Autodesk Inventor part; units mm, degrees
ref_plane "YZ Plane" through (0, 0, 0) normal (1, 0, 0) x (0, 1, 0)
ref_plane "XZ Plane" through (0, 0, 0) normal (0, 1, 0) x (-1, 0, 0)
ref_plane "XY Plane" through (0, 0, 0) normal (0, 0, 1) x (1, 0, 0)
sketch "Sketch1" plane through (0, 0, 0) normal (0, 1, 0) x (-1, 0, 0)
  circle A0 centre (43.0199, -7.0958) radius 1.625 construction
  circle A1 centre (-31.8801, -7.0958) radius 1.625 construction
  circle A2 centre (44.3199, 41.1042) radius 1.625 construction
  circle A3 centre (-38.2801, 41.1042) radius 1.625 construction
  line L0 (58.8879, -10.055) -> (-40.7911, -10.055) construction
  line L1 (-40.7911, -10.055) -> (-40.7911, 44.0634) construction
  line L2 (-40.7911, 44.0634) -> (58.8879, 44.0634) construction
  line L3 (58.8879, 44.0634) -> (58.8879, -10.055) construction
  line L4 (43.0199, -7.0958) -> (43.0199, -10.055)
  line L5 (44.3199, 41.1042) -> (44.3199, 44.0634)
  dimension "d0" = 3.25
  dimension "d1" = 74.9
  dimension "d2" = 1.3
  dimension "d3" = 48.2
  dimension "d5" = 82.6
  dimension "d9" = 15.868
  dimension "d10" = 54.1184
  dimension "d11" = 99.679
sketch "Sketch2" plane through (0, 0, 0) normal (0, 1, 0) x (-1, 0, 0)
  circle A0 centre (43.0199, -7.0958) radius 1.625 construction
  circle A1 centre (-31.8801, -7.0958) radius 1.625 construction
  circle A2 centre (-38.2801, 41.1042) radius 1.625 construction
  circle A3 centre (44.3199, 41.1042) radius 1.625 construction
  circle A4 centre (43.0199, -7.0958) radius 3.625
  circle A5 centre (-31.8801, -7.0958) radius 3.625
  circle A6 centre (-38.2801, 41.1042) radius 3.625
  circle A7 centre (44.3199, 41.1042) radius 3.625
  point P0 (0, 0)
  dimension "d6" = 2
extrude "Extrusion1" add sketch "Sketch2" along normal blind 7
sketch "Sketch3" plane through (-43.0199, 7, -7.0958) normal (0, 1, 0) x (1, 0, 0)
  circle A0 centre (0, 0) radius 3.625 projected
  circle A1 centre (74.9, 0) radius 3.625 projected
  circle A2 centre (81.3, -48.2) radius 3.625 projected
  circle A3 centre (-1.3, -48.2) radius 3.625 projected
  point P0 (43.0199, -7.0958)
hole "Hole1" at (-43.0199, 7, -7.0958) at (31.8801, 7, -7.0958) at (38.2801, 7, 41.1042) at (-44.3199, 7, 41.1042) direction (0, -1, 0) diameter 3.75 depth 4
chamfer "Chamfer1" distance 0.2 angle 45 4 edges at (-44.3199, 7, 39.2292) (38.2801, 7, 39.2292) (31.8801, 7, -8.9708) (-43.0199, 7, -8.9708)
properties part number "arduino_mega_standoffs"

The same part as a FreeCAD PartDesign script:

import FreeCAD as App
import Part
import Sketcher
Q = App.Units.Quantity


def edges_at(feature, points):
    """Names of the edges that pass closest to the given points."""
    edges = feature.Shape.Edges
    near = lambda p: min(range(len(edges)), key=lambda i: edges[i].distToShape(Part.Vertex(*p))[0])
    return sorted({f"Edge{near(p) + 1}" for p in points})

doc = App.newDocument("Part")
body = doc.addObject("PartDesign::Body", "Body")
body.AllowCompound = True

sketch1 = doc.addObject("Sketcher::SketchObject", "Sketch")
body.addObject(sketch1)
sketch1.AttachmentSupport = (doc.XZ_Plane, [""])
sketch1.MapMode = "FlatFace"
sketch1.addGeometry(Part.Circle(App.Vector(-43.0199, -7.0958, 0), App.Vector(0, 0, 1), 3.625), False)
sketch1.addGeometry(Part.Circle(App.Vector(31.8801, -7.0958, 0), App.Vector(0, 0, 1), 3.625), False)
sketch1.addGeometry(Part.Circle(App.Vector(38.2801, 41.1042, 0), App.Vector(0, 0, 1), 3.625), False)
sketch1.addGeometry(Part.Circle(App.Vector(-44.3199, 41.1042, 0), App.Vector(0, 0, 1), 3.625), False)
sketch1.addConstraint(Sketcher.Constraint("Equal", 0, 1))
sketch1.addConstraint(Sketcher.Constraint("Equal", 1, 2))
sketch1.addConstraint(Sketcher.Constraint("Equal", 2, 3))
sketch1.addConstraint(Sketcher.Constraint("Horizontal", 0, 3, 1, 3))
sketch1.addConstraint(Sketcher.Constraint("Horizontal", 2, 3, 3, 3))
sketch1.addConstraint(Sketcher.Constraint("Diameter", 0, Q("7.25 mm")))
sketch1.addConstraint(Sketcher.Constraint("DistanceX", 0, 3, 1, 3, Q("74.9 mm")))
sketch1.addConstraint(Sketcher.Constraint("DistanceX", 1, 3, 2, 3, Q("6.4 mm")))
sketch1.addConstraint(Sketcher.Constraint("DistanceY", 1, 3, 2, 3, Q("48.2 mm")))
sketch1.addConstraint(Sketcher.Constraint("DistanceX", 3, 3, 0, 3, Q("1.3 mm")))
sketch1.addConstraint(Sketcher.Constraint("DistanceX", 0, 3, -1, 1, Q("43.02 mm")))
sketch1.addConstraint(Sketcher.Constraint("DistanceY", 0, 3, -1, 1, Q("7.0958 mm")))
pad1 = doc.addObject("PartDesign::Pad", "Pad")
body.addObject(pad1)
pad1.Profile = sketch1
pad1.Length = 7
pad1.Reversed = True

sketch2 = doc.addObject("Sketcher::SketchObject", "Sketch001")
body.addObject(sketch2)
sketch2.AttachmentSupport = (doc.XZ_Plane, [""])
sketch2.MapMode = "FlatFace"
sketch2.AttachmentOffset = App.Placement(App.Vector(0, 0, -7), App.Rotation())
sketch2.addGeometry(Part.Circle(App.Vector(-43.0199, -7.0958, 0), App.Vector(0, 0, 1), 1.875), False)
sketch2.addGeometry(Part.Circle(App.Vector(31.8801, -7.0958, 0), App.Vector(0, 0, 1), 1.875), False)
sketch2.addGeometry(Part.Circle(App.Vector(38.2801, 41.1042, 0), App.Vector(0, 0, 1), 1.875), False)
sketch2.addGeometry(Part.Circle(App.Vector(-44.3199, 41.1042, 0), App.Vector(0, 0, 1), 1.875), False)
sketch2.addConstraint(Sketcher.Constraint("Equal", 0, 1))
sketch2.addConstraint(Sketcher.Constraint("Equal", 1, 2))
sketch2.addConstraint(Sketcher.Constraint("Equal", 2, 3))
sketch2.addConstraint(Sketcher.Constraint("Horizontal", 0, 3, 1, 3))
sketch2.addConstraint(Sketcher.Constraint("Horizontal", 2, 3, 3, 3))
sketch2.addConstraint(Sketcher.Constraint("Diameter", 0, Q("3.75 mm")))
sketch2.addConstraint(Sketcher.Constraint("DistanceX", 0, 3, 1, 3, Q("74.9 mm")))
sketch2.addConstraint(Sketcher.Constraint("DistanceX", 1, 3, 2, 3, Q("6.4 mm")))
sketch2.addConstraint(Sketcher.Constraint("DistanceY", 1, 3, 2, 3, Q("48.2 mm")))
sketch2.addConstraint(Sketcher.Constraint("DistanceX", 3, 3, 0, 3, Q("1.3 mm")))
sketch2.addConstraint(Sketcher.Constraint("DistanceX", 0, 3, -1, 1, Q("43.02 mm")))
sketch2.addConstraint(Sketcher.Constraint("DistanceY", 0, 3, -1, 1, Q("7.0958 mm")))
doc.recompute()
hole = doc.addObject("PartDesign::Hole", "Hole")
body.addObject(hole)
hole.Profile = sketch2
hole.ThreadType = "None"
hole.Diameter = 3.75
hole.DepthType = "Dimension"
hole.Depth = 4
hole.DrillPoint = "Flat"
hole.Reversed = True
doc.recompute()

chamfer = doc.addObject("PartDesign::Chamfer", "Chamfer")
body.addObject(chamfer)
chamfer.Base = (hole, edges_at(hole, [
    (-44.32, 7, 39.229),
    (38.28, 7, 39.229),
    (31.88, 7, -8.971),
    (-43.02, 7, -8.971),
]))
chamfer.Size = 0.2

doc.recompute()
